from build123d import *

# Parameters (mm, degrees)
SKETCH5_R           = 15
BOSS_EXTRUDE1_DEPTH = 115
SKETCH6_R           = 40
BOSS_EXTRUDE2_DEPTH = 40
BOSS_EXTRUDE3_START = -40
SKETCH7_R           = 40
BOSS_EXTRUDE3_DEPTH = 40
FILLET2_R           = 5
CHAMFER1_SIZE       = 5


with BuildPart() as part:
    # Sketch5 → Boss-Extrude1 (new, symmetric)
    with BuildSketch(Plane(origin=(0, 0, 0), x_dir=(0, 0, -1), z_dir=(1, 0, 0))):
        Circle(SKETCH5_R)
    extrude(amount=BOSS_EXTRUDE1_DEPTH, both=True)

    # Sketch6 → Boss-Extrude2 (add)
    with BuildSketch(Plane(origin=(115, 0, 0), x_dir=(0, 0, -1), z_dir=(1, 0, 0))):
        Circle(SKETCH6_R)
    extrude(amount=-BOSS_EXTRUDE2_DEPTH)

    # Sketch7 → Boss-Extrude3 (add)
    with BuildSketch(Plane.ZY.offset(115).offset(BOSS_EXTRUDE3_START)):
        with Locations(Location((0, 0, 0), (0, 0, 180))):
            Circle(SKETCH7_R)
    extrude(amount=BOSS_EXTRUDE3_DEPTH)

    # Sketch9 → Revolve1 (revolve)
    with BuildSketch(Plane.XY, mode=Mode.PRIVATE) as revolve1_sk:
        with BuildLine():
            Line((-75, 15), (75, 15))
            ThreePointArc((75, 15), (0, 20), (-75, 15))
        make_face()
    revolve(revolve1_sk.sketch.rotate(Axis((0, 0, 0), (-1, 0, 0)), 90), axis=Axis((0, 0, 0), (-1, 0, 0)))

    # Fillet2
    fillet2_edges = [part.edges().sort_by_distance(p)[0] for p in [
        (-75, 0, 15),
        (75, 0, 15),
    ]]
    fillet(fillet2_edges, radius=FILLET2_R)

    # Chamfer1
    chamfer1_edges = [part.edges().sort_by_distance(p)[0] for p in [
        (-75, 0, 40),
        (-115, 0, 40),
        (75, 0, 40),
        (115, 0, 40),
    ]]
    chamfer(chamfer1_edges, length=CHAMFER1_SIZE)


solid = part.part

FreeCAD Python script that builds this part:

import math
import FreeCAD as App
import Part
import Sketcher

V = App.Vector
Q = App.Units.Quantity


def edges_at(feature, points):
    """Names of the edges that pass closest to the given points."""
    edges = feature.Shape.Edges
    near = lambda p: min(range(len(edges)), key=lambda i: edges[i].distToShape(Part.Vertex(*p))[0])
    return sorted({f"Edge{near(p) + 1}" for p in points})

doc = App.newDocument("Part")
body = doc.addObject("PartDesign::Body", "Body")

sketch1 = doc.addObject("Sketcher::SketchObject", "Sketch")
body.addObject(sketch1)
sketch1.AttachmentSupport = (doc.YZ_Plane, [""])
sketch1.MapMode = "FlatFace"
sketch1.addGeometry(Part.Circle(V(0, 0, 0), V(0, 0, 1), 15), False)
sketch1.addConstraint([
    Sketcher.Constraint("Coincident", 0, 3, -1, 1),
    Sketcher.Constraint("Diameter", 0, Q("30 mm")),
])
pad1 = doc.addObject("PartDesign::Pad", "Pad")
body.addObject(pad1)
pad1.Profile = sketch1
pad1.Length = 230
pad1.Midplane = True

sketch2 = doc.addObject("Sketcher::SketchObject", "Sketch001")
body.addObject(sketch2)
sketch2.AttachmentSupport = (doc.YZ_Plane, [""])
sketch2.MapMode = "FlatFace"
sketch2.AttachmentOffset = App.Placement(V(0, 0, 115), App.Rotation())
sketch2.addGeometry(Part.Circle(V(0, 0, 0), V(0, 0, 1), 40), False)
sketch2.addConstraint([
    Sketcher.Constraint("Coincident", 0, 3, -1, 1),
    Sketcher.Constraint("Diameter", 0, Q("80 mm")),
])
pad2 = doc.addObject("PartDesign::Pad", "Pad001")
body.addObject(pad2)
pad2.Profile = sketch2
pad2.Length = 40
pad2.Reversed = True

sketch3 = doc.addObject("Sketcher::SketchObject", "Sketch002")
body.addObject(sketch3)
sketch3.AttachmentSupport = (doc.YZ_Plane, [""])
sketch3.MapMode = "FlatFace"
sketch3.AttachmentOffset = App.Placement(V(0, 0, -75), App.Rotation())
sketch3.addGeometry(Part.Circle(V(0, 0, 0), V(0, 0, 1), 40), False)
sketch3.addConstraint([
    Sketcher.Constraint("Coincident", 0, 3, -1, 1),
    Sketcher.Constraint("Diameter", 0, Q("80 mm")),
])
pad3 = doc.addObject("PartDesign::Pad", "Pad002")
body.addObject(pad3)
pad3.Profile = sketch3
pad3.Length = 40
pad3.Reversed = True

sketch4 = doc.addObject("Sketcher::SketchObject", "Sketch003")
body.addObject(sketch4)
sketch4.AttachmentSupport = (doc.XY_Plane, [""])
sketch4.MapMode = "FlatFace"
sketch4.addGeometry([
    Part.LineSegment(V(-75, 15, 0), V(75, 15, 0)),
    Part.ArcOfCircle(Part.Circle(V(0, -545, 0), V(0, 0, 1), 565), math.radians(82.37), math.radians(97.63)),
], False)
sketch4.addConstraint([
    Sketcher.Constraint("Coincident", 0, 1, 1, 2),
    Sketcher.Constraint("Coincident", 1, 1, 0, 2),
    Sketcher.Constraint("Horizontal", 0),
    Sketcher.Constraint("PointOnObject", 1, 3, -2),
    Sketcher.Constraint("Radius", 1, Q("565 mm")),
    Sketcher.Constraint("DistanceX", 0, 1, 0, 2, Q("150 mm")),
    Sketcher.Constraint("DistanceY", 1, 3, -1, 1, Q("545 mm")),
])
revolution = doc.addObject("PartDesign::Revolution", "Revolution")
body.addObject(revolution)
revolution.Profile = sketch4
revolution.ReferenceAxis = (sketch4, ["H_Axis"])
revolution.Angle = 360
doc.recompute()

fillet = doc.addObject("PartDesign::Fillet", "Fillet")
body.addObject(fillet)
fillet.Base = (revolution, edges_at(revolution, [(-75, 0, 15), (75, 0, 15)]))
fillet.Radius = 5
doc.recompute()

chamfer = doc.addObject("PartDesign::Chamfer", "Chamfer")
body.addObject(chamfer)
chamfer.Base = (fillet, edges_at(fillet, [
    (-75, 0, 40),
    (-115, 0, 40),
    (75, 0, 40),
    (115, 0, 40),
]))
chamfer.Size = 5

doc.recompute()
